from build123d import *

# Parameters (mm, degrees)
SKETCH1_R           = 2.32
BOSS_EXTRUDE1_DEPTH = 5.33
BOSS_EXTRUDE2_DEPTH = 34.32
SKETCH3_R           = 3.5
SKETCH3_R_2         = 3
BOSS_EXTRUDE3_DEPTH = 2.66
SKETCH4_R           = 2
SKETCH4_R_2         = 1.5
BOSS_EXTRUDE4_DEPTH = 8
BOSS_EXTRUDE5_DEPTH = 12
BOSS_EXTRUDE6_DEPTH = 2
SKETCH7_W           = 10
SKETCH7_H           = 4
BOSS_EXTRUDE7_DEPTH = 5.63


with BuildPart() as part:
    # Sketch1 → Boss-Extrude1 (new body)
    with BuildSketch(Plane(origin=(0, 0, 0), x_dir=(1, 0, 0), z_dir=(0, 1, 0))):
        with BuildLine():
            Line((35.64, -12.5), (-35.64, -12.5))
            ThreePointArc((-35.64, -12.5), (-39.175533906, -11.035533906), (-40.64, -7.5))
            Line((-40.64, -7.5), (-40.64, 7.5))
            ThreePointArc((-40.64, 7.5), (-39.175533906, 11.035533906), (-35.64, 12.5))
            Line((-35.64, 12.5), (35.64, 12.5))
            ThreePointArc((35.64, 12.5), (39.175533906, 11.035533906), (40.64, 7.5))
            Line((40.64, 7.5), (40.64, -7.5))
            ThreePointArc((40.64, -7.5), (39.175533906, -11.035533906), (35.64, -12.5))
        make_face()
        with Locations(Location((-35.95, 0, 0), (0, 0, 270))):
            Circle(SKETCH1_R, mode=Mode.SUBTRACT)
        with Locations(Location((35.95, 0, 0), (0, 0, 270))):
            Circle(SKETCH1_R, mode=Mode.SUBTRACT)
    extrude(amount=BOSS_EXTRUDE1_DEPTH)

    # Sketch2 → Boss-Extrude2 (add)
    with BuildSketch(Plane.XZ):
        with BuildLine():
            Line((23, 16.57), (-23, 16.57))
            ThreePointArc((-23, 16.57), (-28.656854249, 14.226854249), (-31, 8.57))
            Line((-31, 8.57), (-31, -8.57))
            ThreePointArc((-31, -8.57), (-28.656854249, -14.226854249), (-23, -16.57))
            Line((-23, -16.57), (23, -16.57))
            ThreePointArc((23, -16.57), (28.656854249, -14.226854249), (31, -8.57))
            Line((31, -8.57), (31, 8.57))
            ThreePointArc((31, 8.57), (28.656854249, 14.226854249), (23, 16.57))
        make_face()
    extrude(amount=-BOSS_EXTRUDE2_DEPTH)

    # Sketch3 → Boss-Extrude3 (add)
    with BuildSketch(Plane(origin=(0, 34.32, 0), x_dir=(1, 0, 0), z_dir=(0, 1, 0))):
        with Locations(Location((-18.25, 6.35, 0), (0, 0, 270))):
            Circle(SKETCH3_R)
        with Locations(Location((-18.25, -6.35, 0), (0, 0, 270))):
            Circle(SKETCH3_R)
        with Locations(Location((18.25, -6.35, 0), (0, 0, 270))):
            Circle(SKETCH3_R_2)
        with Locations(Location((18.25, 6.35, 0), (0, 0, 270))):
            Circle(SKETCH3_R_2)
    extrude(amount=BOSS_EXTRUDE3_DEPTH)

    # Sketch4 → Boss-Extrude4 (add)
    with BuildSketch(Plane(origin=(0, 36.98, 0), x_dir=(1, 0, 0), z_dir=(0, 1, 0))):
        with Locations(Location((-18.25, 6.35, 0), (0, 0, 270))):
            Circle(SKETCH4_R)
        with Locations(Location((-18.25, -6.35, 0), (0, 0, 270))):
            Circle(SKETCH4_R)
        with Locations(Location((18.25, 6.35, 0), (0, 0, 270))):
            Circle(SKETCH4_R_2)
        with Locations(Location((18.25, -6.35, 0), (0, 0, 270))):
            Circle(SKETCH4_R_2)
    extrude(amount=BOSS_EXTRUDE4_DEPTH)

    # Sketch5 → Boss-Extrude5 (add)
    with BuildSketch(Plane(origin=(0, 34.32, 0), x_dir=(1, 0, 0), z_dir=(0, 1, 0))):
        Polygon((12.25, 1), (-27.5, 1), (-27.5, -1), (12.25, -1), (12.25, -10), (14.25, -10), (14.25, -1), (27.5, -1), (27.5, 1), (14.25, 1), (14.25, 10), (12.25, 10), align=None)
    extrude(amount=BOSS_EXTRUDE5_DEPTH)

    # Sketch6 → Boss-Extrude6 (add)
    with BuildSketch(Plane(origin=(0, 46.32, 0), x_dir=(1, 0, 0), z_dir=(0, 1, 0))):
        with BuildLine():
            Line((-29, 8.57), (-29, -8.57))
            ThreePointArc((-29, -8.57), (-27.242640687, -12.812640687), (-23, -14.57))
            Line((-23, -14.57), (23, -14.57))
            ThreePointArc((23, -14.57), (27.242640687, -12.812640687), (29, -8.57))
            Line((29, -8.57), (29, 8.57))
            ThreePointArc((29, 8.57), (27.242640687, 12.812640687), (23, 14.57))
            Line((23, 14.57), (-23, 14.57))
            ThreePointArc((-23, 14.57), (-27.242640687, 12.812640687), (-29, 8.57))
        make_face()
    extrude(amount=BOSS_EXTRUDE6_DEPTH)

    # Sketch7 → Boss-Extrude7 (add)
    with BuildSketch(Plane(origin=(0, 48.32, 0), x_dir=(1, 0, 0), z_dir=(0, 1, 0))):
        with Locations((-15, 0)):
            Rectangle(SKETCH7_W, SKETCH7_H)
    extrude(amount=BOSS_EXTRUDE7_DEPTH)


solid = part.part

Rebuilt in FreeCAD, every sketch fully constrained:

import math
import FreeCAD as App
import Part
import Sketcher

V = App.Vector
Q = App.Units.Quantity


def add_polygon(sketch, points):
    """Adds a closed chain of lines whose ends are joined by coincident constraints."""
    first, n = sketch.GeometryCount, len(points)
    for a, b in zip(points, points[1:] + points[:1]):
        sketch.addGeometry(Part.LineSegment(App.Vector(*a, 0), App.Vector(*b, 0)), False)
    for i in range(n):
        sketch.addConstraint(Sketcher.Constraint("Coincident", first + i, 2, first + (i + 1) % n, 1))

doc = App.newDocument("Part")
body = doc.addObject("PartDesign::Body", "Body")

sketch1 = doc.addObject("Sketcher::SketchObject", "Sketch")
body.addObject(sketch1)
sketch1.AttachmentSupport = (doc.XZ_Plane, [""])
sketch1.MapMode = "FlatFace"
sketch1.addGeometry([
    Part.LineSegment(V(-35.64, 12.5, 0), V(35.64, 12.5, 0)),
    Part.ArcOfCircle(Part.Circle(V(35.64, 7.5, 0), V(0, 0, 1), 5), math.radians(0), math.radians(90)),
    Part.LineSegment(V(40.64, 7.5, 0), V(40.64, -7.5, 0)),
    Part.ArcOfCircle(Part.Circle(V(35.64, -7.5, 0), V(0, 0, 1), 5), math.radians(-90), math.radians(0)),
    Part.LineSegment(V(35.64, -12.5, 0), V(-35.64, -12.5, 0)),
    Part.ArcOfCircle(Part.Circle(V(-35.64, -7.5, 0), V(0, 0, 1), 5), math.radians(180), math.radians(270)),
    Part.LineSegment(V(-40.64, -7.5, 0), V(-40.64, 7.5, 0)),
    Part.ArcOfCircle(Part.Circle(V(-35.64, 7.5, 0), V(0, 0, 1), 5), math.radians(90), math.radians(180)),
    Part.Circle(V(35.95, 0, 0), V(0, 0, 1), 2.32),
    Part.Circle(V(-35.95, 0, 0), V(0, 0, 1), 2.32),
], False)
sketch1.addConstraint([
    Sketcher.Constraint("Tangent", 0, 2, 1, 2),
    Sketcher.Constraint("Tangent", 1, 1, 2, 1),
    Sketcher.Constraint("Tangent", 2, 2, 3, 2),
    Sketcher.Constraint("Tangent", 3, 1, 4, 1),
    Sketcher.Constraint("Tangent", 4, 2, 5, 2),
    Sketcher.Constraint("Tangent", 5, 1, 6, 1),
    Sketcher.Constraint("Tangent", 6, 2, 7, 2),
    Sketcher.Constraint("Tangent", 7, 1, 0, 1),
    Sketcher.Constraint("Horizontal", 0),
    Sketcher.Constraint("Vertical", 2),
    Sketcher.Constraint("Horizontal", 4),
    Sketcher.Constraint("Vertical", 6),
    Sketcher.Constraint("Equal", 1, 3),
    Sketcher.Constraint("Equal", 3, 5),
    Sketcher.Constraint("Equal", 5, 7),
    Sketcher.Constraint("Equal", 8, 9),
    Sketcher.Constraint("Symmetric", 1, 3, 5, 3, -1, 1),
    Sketcher.Constraint("Symmetric", 8, 3, 9, 3, -1, 1),
    Sketcher.Constraint("PointOnObject", 8, 3, -1),
    Sketcher.Constraint("Radius", 1, Q("5 mm")),
    Sketcher.Constraint("Diameter", 8, Q("4.64 mm")),
    Sketcher.Constraint("DistanceY", 2, 2, 2, 1, Q("15 mm")),
    Sketcher.Constraint("DistanceX", 0, 1, 0, 2, Q("71.28 mm")),
    Sketcher.Constraint("DistanceX", 9, 3, 8, 3, Q("71.9 mm")),
])
pad1 = doc.addObject("PartDesign::Pad", "Pad")
body.addObject(pad1)
pad1.Profile = sketch1
pad1.Length = 5.33
pad1.Reversed = True

sketch2 = doc.addObject("Sketcher::SketchObject", "Sketch001")
body.addObject(sketch2)
sketch2.AttachmentSupport = (doc.XZ_Plane, [""])
sketch2.MapMode = "FlatFace"
sketch2.addGeometry([
    Part.LineSegment(V(23, 16.57, 0), V(-23, 16.57, 0)),
    Part.ArcOfCircle(Part.Circle(V(-23, 8.57, 0), V(0, 0, 1), 8), math.radians(90), math.radians(180)),
    Part.LineSegment(V(-31, 8.57, 0), V(-31, -8.57, 0)),
    Part.ArcOfCircle(Part.Circle(V(-23, -8.57, 0), V(0, 0, 1), 8), math.radians(-180), math.radians(-90)),
    Part.LineSegment(V(-23, -16.57, 0), V(23, -16.57, 0)),
    Part.ArcOfCircle(Part.Circle(V(23, -8.57, 0), V(0, 0, 1), 8), math.radians(-90), math.radians(0)),
    Part.LineSegment(V(31, -8.57, 0), V(31, 8.57, 0)),
    Part.ArcOfCircle(Part.Circle(V(23, 8.57, 0), V(0, 0, 1), 8), math.radians(0), math.radians(90)),
], False)
sketch2.addConstraint([
    Sketcher.Constraint("Tangent", 0, 2, 1, 1),
    Sketcher.Constraint("Tangent", 1, 2, 2, 1),
    Sketcher.Constraint("Tangent", 2, 2, 3, 1),
    Sketcher.Constraint("Tangent", 3, 2, 4, 1),
    Sketcher.Constraint("Tangent", 4, 2, 5, 1),
    Sketcher.Constraint("Tangent", 5, 2, 6, 1),
    Sketcher.Constraint("Tangent", 6, 2, 7, 1),
    Sketcher.Constraint("Tangent", 7, 2, 0, 1),
    Sketcher.Constraint("Horizontal", 0),
    Sketcher.Constraint("Vertical", 2),
    Sketcher.Constraint("Horizontal", 4),
    Sketcher.Constraint("Vertical", 6),
    Sketcher.Constraint("Equal", 1, 3),
    Sketcher.Constraint("Equal", 3, 5),
    Sketcher.Constraint("Equal", 5, 7),
    Sketcher.Constraint("Symmetric", 1, 3, 5, 3, -1, 1),
    Sketcher.Constraint("Radius", 1, Q("8 mm")),
    Sketcher.Constraint("DistanceX", 0, 2, 0, 1, Q("46 mm")),
    Sketcher.Constraint("DistanceY", 2, 2, 2, 1, Q("17.14 mm")),
])
pad2 = doc.addObject("PartDesign::Pad", "Pad001")
body.addObject(pad2)
pad2.Profile = sketch2
pad2.Length = 34.32
pad2.Reversed = True

sketch3 = doc.addObject("Sketcher::SketchObject", "Sketch002")
body.addObject(sketch3)
sketch3.AttachmentSupport = (doc.XZ_Plane, [""])
sketch3.MapMode = "FlatFace"
sketch3.AttachmentOffset = App.Placement(V(0, 0, -34.32), App.Rotation())
sketch3.addGeometry([
    Part.Circle(V(-18.25, -6.35, 0), V(0, 0, 1), 3.5),
    Part.Circle(V(-18.25, 6.35, 0), V(0, 0, 1), 3.5),
    Part.Circle(V(18.25, 6.35, 0), V(0, 0, 1), 3),
    Part.Circle(V(18.25, -6.35, 0), V(0, 0, 1), 3),
], False)
sketch3.addConstraint([
    Sketcher.Constraint("Equal", 0, 1),
    Sketcher.Constraint("Equal", 2, 3),
    Sketcher.Constraint("Symmetric", 0, 3, 2, 3, -1, 1),
    Sketcher.Constraint("Symmetric", 1, 3, 3, 3, -1, 1),
    Sketcher.Constraint("Symmetric", 1, 3, 2, 3, -2),
    Sketcher.Constraint("Diameter", 0, Q("7 mm")),
    Sketcher.Constraint("Diameter", 2, Q("6 mm")),
    Sketcher.Constraint("DistanceY", 0, 3, 1, 3, Q("12.7 mm")),
    Sketcher.Constraint("DistanceX", 1, 3, 2, 3, Q("36.5 mm")),
])
pad3 = doc.addObject("PartDesign::Pad", "Pad002")
body.addObject(pad3)
pad3.Profile = sketch3
pad3.Length = 2.66
pad3.Reversed = True

sketch4 = doc.addObject("Sketcher::SketchObject", "Sketch003")
body.addObject(sketch4)
sketch4.AttachmentSupport = (doc.XZ_Plane, [""])
sketch4.MapMode = "FlatFace"
sketch4.AttachmentOffset = App.Placement(V(0, 0, -36.98), App.Rotation())
sketch4.addGeometry([
    Part.Circle(V(-18.25, -6.35, 0), V(0, 0, 1), 2),
    Part.Circle(V(-18.25, 6.35, 0), V(0, 0, 1), 2),
    Part.Circle(V(18.25, -6.35, 0), V(0, 0, 1), 1.5),
    Part.Circle(V(18.25, 6.35, 0), V(0, 0, 1), 1.5),
], False)
sketch4.addConstraint([
    Sketcher.Constraint("Equal", 0, 1),
    Sketcher.Constraint("Equal", 2, 3),
    Sketcher.Constraint("Symmetric", 1, 3, 2, 3, -1, 1),
    Sketcher.Constraint("Symmetric", 0, 3, 3, 3, -1, 1),
    Sketcher.Constraint("Symmetric", 0, 3, 2, 3, -2),
    Sketcher.Constraint("Diameter", 0, Q("4 mm")),
    Sketcher.Constraint("Diameter", 2, Q("3 mm")),
    Sketcher.Constraint("DistanceY", 0, 3, 1, 3, Q("12.7 mm")),
    Sketcher.Constraint("DistanceX", 0, 3, 2, 3, Q("36.5 mm")),
])
pad4 = doc.addObject("PartDesign::Pad", "Pad003")
body.addObject(pad4)
pad4.Profile = sketch4
pad4.Length = 8
pad4.Reversed = True

sketch5 = doc.addObject("Sketcher::SketchObject", "Sketch004")
body.addObject(sketch5)
sketch5.AttachmentSupport = (doc.XZ_Plane, [""])
sketch5.MapMode = "FlatFace"
sketch5.AttachmentOffset = App.Placement(V(0, 0, -34.32), App.Rotation())
add_polygon(sketch5, [(12.25, -1), (-27.5, -1), (-27.5, 1), (12.25, 1), (12.25, 10), (14.25, 10), (14.25, 1), (27.5, 1), (27.5, -1), (14.25, -1), (14.25, -10), (12.25, -10)])
sketch5.addConstraint([
    Sketcher.Constraint("Horizontal", 0),
    Sketcher.Constraint("Vertical", 1),
    Sketcher.Constraint("Horizontal", 2),
    Sketcher.Constraint("Vertical", 3),
    Sketcher.Constraint("Horizontal", 4),
    Sketcher.Constraint("Vertical", 5),
    Sketcher.Constraint("Horizontal", 6),
    Sketcher.Constraint("Vertical", 7),
    Sketcher.Constraint("Horizontal", 8),
    Sketcher.Constraint("Vertical", 9),
    Sketcher.Constraint("Horizontal", 10),
    Sketcher.Constraint("Vertical", 11),
    Sketcher.Constraint("Symmetric", 0, 2, 6, 2, -1, 1),
    Sketcher.Constraint("Symmetric", 5, 2, 8, 2, -1),
    Sketcher.Constraint("Symmetric", 3, 2, 10, 2, -1),
    Sketcher.Constraint("Horizontal", 2, 2, 5, 2),
    Sketcher.Constraint("Equal", 10, 1),
    Sketcher.Constraint("DistanceX", 4, 1, 4, 2, Q("2 mm")),
    Sketcher.Constraint("DistanceY", 3, 1, 3, 2, Q("9 mm")),
    Sketcher.Constraint("DistanceX", 1, 2, 6, 2, Q("55 mm")),
    Sketcher.Constraint("DistanceX", 0, 2, 0, 1, Q("39.75 mm")),
])
pad5 = doc.addObject("PartDesign::Pad", "Pad004")
body.addObject(pad5)
pad5.Profile = sketch5
pad5.Length = 12
pad5.Reversed = True

sketch6 = doc.addObject("Sketcher::SketchObject", "Sketch005")
body.addObject(sketch6)
sketch6.AttachmentSupport = (doc.XZ_Plane, [""])
sketch6.MapMode = "FlatFace"
sketch6.AttachmentOffset = App.Placement(V(0, 0, -46.32), App.Rotation())
sketch6.addGeometry([
    Part.LineSegment(V(-29, -8.57, 0), V(-29, 8.57, 0)),
    Part.ArcOfCircle(Part.Circle(V(-23, 8.57, 0), V(0, 0, 1), 6), math.radians(90), math.radians(180)),
    Part.LineSegment(V(-23, 14.57, 0), V(23, 14.57, 0)),
    Part.ArcOfCircle(Part.Circle(V(23, 8.57, 0), V(0, 0, 1), 6), math.radians(0), math.radians(90)),
    Part.LineSegment(V(29, 8.57, 0), V(29, -8.57, 0)),
    Part.ArcOfCircle(Part.Circle(V(23, -8.57, 0), V(0, 0, 1), 6), math.radians(-90), math.radians(0)),
    Part.LineSegment(V(23, -14.57, 0), V(-23, -14.57, 0)),
    Part.ArcOfCircle(Part.Circle(V(-23, -8.57, 0), V(0, 0, 1), 6), math.radians(180), math.radians(270)),
], False)
sketch6.addConstraint([
    Sketcher.Constraint("Tangent", 0, 2, 1, 2),
    Sketcher.Constraint("Tangent", 1, 1, 2, 1),
    Sketcher.Constraint("Tangent", 2, 2, 3, 2),
    Sketcher.Constraint("Tangent", 3, 1, 4, 1),
    Sketcher.Constraint("Tangent", 4, 2, 5, 2),
    Sketcher.Constraint("Tangent", 5, 1, 6, 1),
    Sketcher.Constraint("Tangent", 6, 2, 7, 2),
    Sketcher.Constraint("Tangent", 7, 1, 0, 1),
    Sketcher.Constraint("Vertical", 0),
    Sketcher.Constraint("Horizontal", 2),
    Sketcher.Constraint("Vertical", 4),
    Sketcher.Constraint("Horizontal", 6),
    Sketcher.Constraint("Equal", 1, 3),
    Sketcher.Constraint("Equal", 3, 5),
    Sketcher.Constraint("Equal", 5, 7),
    Sketcher.Constraint("Symmetric", 1, 3, 5, 3, -1, 1),
    Sketcher.Constraint("Radius", 1, Q("6 mm")),
    Sketcher.Constraint("DistanceX", 2, 1, 2, 2, Q("46 mm")),
    Sketcher.Constraint("DistanceY", 0, 1, 0, 2, Q("17.14 mm")),
])
pad6 = doc.addObject("PartDesign::Pad", "Pad005")
body.addObject(pad6)
pad6.Profile = sketch6
pad6.Length = 2
pad6.Reversed = True

sketch7 = doc.addObject("Sketcher::SketchObject", "Sketch006")
body.addObject(sketch7)
sketch7.AttachmentSupport = (doc.XZ_Plane, [""])
sketch7.MapMode = "FlatFace"
sketch7.AttachmentOffset = App.Placement(V(0, 0, -48.32), App.Rotation())
add_polygon(sketch7, [(-20, -2), (-20, 2), (-10, 2), (-10, -2)])
sketch7.addConstraint([
    Sketcher.Constraint("Vertical", 0),
    Sketcher.Constraint("Horizontal", 1),
    Sketcher.Constraint("Vertical", 2),
    Sketcher.Constraint("Horizontal", 3),
    Sketcher.Constraint("DistanceX", 1, 1, 1, 2, Q("10 mm")),
    Sketcher.Constraint("DistanceY", 0, 1, 0, 2, Q("4 mm")),
    Sketcher.Constraint("DistanceX", 0, 2, -1, 1, Q("20 mm")),
    Sketcher.Constraint("DistanceY", -1, 1, 0, 2, Q("2 mm")),
])
pad7 = doc.addObject("PartDesign::Pad", "Pad006")
body.addObject(pad7)
pad7.Profile = sketch7
pad7.Length = 5.63
pad7.Reversed = True

doc.recompute()
